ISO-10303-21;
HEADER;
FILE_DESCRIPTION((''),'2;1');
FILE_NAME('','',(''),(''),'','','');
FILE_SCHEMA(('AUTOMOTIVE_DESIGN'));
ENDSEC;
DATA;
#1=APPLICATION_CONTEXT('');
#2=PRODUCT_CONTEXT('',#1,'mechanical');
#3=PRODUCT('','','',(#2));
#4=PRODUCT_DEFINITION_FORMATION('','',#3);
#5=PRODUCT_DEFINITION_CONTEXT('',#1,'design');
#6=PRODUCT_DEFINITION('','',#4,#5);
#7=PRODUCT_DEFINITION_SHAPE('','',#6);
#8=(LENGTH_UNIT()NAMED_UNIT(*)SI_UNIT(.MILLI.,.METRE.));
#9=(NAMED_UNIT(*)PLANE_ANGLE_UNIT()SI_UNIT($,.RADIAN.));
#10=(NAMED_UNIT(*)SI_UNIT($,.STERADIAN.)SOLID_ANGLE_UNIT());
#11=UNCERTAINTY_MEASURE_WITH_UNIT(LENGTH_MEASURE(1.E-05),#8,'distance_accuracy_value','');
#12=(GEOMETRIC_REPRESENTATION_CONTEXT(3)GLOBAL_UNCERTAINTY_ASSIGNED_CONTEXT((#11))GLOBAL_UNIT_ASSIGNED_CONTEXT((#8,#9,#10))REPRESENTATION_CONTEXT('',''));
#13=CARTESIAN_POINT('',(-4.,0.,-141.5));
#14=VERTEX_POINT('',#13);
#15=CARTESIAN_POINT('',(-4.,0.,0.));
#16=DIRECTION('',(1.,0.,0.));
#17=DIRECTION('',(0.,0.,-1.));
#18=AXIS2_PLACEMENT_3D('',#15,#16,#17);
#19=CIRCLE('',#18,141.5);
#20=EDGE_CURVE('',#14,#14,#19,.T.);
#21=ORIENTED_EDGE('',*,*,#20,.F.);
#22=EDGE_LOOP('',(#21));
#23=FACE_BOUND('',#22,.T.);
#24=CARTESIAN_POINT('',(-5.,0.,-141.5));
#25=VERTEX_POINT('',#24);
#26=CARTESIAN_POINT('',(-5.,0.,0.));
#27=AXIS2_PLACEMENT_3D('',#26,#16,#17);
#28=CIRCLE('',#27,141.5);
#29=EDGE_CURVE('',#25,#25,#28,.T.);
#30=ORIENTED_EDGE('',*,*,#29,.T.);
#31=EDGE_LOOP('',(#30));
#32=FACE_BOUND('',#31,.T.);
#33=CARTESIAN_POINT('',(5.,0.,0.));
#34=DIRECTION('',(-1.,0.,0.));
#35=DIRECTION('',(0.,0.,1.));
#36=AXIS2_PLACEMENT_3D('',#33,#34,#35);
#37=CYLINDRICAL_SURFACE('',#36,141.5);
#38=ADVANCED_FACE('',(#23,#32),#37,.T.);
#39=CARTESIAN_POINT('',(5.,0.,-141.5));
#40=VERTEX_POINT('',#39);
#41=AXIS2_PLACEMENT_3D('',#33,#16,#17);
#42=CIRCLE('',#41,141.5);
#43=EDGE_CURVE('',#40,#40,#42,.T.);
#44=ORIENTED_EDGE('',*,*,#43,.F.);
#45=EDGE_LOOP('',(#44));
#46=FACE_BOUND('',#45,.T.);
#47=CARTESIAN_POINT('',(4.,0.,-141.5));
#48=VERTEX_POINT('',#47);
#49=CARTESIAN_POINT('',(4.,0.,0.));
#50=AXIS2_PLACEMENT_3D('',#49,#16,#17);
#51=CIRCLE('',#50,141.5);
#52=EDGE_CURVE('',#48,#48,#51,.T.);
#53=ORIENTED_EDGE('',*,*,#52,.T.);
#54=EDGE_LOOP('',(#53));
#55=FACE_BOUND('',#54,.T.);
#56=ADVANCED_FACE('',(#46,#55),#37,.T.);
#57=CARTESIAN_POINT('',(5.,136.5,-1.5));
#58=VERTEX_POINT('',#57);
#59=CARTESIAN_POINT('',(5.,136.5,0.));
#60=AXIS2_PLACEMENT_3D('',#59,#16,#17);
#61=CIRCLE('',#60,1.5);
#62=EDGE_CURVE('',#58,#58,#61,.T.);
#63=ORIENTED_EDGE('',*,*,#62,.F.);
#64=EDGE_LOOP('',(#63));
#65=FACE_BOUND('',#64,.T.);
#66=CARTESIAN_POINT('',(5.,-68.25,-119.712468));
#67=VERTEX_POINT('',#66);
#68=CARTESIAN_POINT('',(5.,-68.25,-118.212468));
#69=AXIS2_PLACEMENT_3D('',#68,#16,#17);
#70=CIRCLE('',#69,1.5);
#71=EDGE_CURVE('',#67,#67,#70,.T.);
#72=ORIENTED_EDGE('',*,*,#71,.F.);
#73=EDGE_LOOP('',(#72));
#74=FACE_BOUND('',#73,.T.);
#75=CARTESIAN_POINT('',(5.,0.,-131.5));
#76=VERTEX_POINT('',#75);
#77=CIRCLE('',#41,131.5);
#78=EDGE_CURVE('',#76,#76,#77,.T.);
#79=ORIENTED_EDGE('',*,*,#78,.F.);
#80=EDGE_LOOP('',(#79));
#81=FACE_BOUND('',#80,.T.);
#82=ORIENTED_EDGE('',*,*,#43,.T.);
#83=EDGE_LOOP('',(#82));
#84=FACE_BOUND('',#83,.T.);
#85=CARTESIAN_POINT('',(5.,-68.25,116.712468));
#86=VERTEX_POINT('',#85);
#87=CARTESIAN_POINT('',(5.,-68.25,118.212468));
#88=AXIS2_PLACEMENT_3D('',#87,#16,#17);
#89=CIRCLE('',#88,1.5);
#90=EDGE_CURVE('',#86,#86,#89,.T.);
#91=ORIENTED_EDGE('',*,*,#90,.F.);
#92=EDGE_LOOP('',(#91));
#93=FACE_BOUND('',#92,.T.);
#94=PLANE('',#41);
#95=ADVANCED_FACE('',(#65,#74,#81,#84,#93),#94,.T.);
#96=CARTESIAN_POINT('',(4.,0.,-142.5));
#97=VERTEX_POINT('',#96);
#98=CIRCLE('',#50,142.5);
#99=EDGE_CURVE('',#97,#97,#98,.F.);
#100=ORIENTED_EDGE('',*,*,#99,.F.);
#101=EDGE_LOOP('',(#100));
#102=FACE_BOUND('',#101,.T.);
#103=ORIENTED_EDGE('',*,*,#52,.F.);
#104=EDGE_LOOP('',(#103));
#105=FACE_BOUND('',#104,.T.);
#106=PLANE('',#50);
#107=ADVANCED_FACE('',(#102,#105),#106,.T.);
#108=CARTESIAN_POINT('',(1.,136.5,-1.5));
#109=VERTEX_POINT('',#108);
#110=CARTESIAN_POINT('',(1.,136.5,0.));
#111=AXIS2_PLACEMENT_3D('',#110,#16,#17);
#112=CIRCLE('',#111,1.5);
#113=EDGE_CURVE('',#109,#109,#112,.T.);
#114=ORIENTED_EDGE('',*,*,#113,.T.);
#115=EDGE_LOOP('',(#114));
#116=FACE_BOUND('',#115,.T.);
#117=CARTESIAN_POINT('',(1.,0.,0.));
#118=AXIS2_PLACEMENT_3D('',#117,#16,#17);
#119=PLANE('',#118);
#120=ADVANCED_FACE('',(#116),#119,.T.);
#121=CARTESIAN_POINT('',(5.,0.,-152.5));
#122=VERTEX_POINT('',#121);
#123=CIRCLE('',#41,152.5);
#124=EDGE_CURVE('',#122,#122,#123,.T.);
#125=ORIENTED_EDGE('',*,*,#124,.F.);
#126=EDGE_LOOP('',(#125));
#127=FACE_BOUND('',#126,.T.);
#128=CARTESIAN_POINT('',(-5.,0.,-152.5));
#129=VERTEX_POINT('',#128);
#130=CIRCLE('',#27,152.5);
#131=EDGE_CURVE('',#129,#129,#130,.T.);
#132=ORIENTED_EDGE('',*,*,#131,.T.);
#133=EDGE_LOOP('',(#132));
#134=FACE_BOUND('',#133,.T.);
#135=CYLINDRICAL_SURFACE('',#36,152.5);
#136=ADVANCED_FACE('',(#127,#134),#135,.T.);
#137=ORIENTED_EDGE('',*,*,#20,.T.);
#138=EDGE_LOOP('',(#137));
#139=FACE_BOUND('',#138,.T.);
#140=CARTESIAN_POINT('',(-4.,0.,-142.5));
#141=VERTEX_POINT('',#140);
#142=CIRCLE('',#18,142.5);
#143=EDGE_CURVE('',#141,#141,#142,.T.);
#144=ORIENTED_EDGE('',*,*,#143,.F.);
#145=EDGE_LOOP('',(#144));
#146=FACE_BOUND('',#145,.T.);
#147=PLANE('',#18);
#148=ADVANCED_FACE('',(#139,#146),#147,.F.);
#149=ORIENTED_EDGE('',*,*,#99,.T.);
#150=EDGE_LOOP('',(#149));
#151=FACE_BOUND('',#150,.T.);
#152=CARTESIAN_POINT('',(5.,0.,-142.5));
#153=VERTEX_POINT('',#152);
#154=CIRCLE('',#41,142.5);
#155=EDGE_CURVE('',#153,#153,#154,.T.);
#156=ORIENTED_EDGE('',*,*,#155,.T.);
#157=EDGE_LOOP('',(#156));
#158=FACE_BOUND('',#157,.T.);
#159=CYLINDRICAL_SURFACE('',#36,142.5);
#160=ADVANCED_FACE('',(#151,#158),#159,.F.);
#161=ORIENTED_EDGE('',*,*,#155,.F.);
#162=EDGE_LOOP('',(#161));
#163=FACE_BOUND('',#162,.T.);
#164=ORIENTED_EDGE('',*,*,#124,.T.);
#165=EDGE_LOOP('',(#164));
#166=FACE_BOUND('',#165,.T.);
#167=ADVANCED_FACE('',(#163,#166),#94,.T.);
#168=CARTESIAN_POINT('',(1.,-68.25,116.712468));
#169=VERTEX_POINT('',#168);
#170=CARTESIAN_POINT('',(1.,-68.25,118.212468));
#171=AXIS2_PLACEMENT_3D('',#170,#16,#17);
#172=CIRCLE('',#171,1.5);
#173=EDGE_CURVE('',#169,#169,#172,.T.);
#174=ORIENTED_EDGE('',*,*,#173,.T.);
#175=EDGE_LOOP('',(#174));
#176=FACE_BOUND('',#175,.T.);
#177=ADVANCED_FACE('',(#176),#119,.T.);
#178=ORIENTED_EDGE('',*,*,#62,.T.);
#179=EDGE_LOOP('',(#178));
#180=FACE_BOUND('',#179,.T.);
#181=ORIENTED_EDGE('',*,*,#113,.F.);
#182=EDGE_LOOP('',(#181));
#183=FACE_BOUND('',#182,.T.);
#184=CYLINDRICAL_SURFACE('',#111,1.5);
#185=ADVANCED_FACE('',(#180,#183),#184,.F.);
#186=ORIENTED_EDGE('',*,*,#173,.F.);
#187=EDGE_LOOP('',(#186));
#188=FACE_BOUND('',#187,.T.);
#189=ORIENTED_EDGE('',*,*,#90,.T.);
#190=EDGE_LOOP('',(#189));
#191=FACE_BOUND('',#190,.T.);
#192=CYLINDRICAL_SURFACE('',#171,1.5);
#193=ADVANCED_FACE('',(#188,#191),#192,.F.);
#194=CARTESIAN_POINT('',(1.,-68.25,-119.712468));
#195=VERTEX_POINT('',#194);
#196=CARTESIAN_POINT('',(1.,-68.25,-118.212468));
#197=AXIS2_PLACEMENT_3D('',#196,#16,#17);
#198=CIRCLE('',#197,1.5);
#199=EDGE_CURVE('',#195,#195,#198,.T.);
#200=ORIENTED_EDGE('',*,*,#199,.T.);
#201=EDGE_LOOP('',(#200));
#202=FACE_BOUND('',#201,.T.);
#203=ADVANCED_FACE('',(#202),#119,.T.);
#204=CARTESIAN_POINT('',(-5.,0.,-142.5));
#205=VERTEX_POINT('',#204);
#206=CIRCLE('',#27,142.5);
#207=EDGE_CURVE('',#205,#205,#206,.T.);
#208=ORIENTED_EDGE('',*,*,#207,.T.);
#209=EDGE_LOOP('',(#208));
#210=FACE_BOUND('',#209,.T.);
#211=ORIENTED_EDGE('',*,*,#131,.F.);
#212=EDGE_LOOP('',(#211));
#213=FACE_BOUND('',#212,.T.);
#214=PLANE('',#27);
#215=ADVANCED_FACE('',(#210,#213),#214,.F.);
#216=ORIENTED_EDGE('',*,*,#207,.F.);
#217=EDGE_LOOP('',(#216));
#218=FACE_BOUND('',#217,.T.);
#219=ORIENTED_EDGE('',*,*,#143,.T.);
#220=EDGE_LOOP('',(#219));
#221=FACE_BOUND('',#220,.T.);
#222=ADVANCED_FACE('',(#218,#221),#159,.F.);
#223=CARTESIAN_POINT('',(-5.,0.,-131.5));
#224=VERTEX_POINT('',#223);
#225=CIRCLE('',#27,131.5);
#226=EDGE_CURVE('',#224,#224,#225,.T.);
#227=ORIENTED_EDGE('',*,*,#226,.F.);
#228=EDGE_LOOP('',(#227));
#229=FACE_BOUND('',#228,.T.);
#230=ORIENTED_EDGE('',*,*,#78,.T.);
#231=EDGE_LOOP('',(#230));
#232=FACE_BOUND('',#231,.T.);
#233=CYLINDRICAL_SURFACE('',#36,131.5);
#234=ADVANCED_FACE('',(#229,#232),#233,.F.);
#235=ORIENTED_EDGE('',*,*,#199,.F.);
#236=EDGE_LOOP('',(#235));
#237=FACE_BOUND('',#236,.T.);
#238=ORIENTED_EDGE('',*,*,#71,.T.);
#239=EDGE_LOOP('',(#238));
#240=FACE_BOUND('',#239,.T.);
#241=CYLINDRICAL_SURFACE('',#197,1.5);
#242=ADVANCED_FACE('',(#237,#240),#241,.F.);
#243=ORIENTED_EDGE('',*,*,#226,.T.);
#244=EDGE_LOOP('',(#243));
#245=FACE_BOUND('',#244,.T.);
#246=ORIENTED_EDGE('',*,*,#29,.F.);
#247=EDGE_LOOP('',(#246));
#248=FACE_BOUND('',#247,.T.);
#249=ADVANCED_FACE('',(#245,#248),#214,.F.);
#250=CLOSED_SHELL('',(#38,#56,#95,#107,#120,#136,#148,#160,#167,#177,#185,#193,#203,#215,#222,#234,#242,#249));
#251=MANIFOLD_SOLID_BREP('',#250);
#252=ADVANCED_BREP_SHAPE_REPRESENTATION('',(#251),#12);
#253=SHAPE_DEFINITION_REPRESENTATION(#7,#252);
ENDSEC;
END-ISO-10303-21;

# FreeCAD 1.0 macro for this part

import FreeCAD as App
import Part
import Sketcher

doc = App.newDocument("Part")
body = doc.addObject("PartDesign::Body", "Body")

# Sketch on YZ plane
sketch1 = doc.addObject("Sketcher::SketchObject", "Sketch")
body.addObject(sketch1)
sketch1.AttachmentSupport = (doc.YZ_Plane, [""])
sketch1.MapMode = "FlatFace"
sketch1.addGeometry([
    Part.Circle(App.Vector(0, 0, 0), App.Vector(0, 0, 1), 142),
    Part.Circle(App.Vector(0, 0, 0), App.Vector(0, 0, 1), 132),
], False)
sketch1.addConstraint([
    Sketcher.Constraint("Coincident", 0, 3, -1, 1),
    Sketcher.Constraint("Coincident", 1, 3, -1, 1),
    Sketcher.Constraint("Diameter", 0, 283.0),
    Sketcher.Constraint("Diameter", 1, 263.0),
])
pad1 = doc.addObject("PartDesign::Pad", "Pad")
body.addObject(pad1)
pad1.Profile = sketch1
pad1.Length = 10
pad1.Midplane = True
body2 = doc.addObject("PartDesign::Body", "Body001")

# Sketch on YZ plane
sketch2 = doc.addObject("Sketcher::SketchObject", "Sketch001")
body2.addObject(sketch2)
sketch2.AttachmentSupport = (doc.getObject("YZ_Plane001"), [""])
sketch2.MapMode = "FlatFace"
sketch2.addGeometry([
    Part.Circle(App.Vector(0, 0, 0), App.Vector(0, 0, 1), 152),
    Part.Circle(App.Vector(0, 0, 0), App.Vector(0, 0, 1), 142),
], False)
sketch2.addConstraint([
    Sketcher.Constraint("Coincident", 0, 3, -1, 1),
    Sketcher.Constraint("Coincident", 1, 3, -1, 1),
    Sketcher.Constraint("Diameter", 0, 305.0),
    Sketcher.Constraint("Diameter", 1, 285.0),
])
pad2 = doc.addObject("PartDesign::Pad", "Pad001")
body2.addObject(pad2)
pad2.Profile = sketch2
pad2.Length = 10
pad2.Midplane = True
body.AllowCompound = True
doc.recompute()

boolean = doc.addObject("PartDesign::Boolean", "Boolean")
body.addObject(boolean)
boolean.Type = "Fuse"
boolean.addObjects([body2])

# Sketch on YZ plane
sketch3 = doc.addObject("Sketcher::SketchObject", "Sketch002")
body.addObject(sketch3)
sketch3.AttachmentSupport = (doc.YZ_Plane, [""])
sketch3.MapMode = "FlatFace"
sketch3.addGeometry([
    Part.Circle(App.Vector(0, 0, 0), App.Vector(0, 0, 1), 142),
    Part.Circle(App.Vector(0, 0, 0), App.Vector(0, 0, 1), 142),
], False)
sketch3.addConstraint([
    Sketcher.Constraint("Coincident", 0, 3, -1, 1),
    Sketcher.Constraint("Coincident", 1, 3, -1, 1),
    Sketcher.Constraint("Diameter", 0, 285.0),
    Sketcher.Constraint("Diameter", 1, 283.0),
])
pad3 = doc.addObject("PartDesign::Pad", "Pad002")
body.addObject(pad3)
pad3.Profile = sketch3
pad3.Length = 8
pad3.Midplane = True

# Sketch on YZ plane
sketch4 = doc.addObject("Sketcher::SketchObject", "Sketch003")
body.addObject(sketch4)
sketch4.AttachmentSupport = (doc.YZ_Plane, [""])
sketch4.MapMode = "FlatFace"
sketch4.AttachmentOffset = App.Placement(App.Vector(0, 0, 5), App.Rotation())
sketch4.addGeometry([
    Part.Circle(App.Vector(136.5, 0, 0), App.Vector(0, 0, 1), 1.5),
    Part.Circle(App.Vector(-68.2, -118.2, 0), App.Vector(0, 0, 1), 1.5),
    Part.Circle(App.Vector(-68.2, 118.2, 0), App.Vector(0, 0, 1), 1.5),
], False)
sketch4.addConstraint([
    Sketcher.Constraint("Equal", 0, 1),
    Sketcher.Constraint("Equal", 1, 2),
    Sketcher.Constraint("Symmetric", 1, 3, 2, 3, -1),
    Sketcher.Constraint("PointOnObject", 0, 3, -1),
    Sketcher.Constraint("Diameter", 0, 3.0),
    Sketcher.Constraint("DistanceX", -1, 1, 0, 3, 136.5),
    Sketcher.Constraint("DistanceX", 1, 3, -1, 1, 68.25),
    Sketcher.Constraint("DistanceY", 1, 3, -1, 1, 118.212468),
])
pocket1 = doc.addObject("PartDesign::Pocket", "Pocket")
body.addObject(pocket1)
pocket1.Profile = sketch4
pocket1.Length = 4

doc.recompute()
